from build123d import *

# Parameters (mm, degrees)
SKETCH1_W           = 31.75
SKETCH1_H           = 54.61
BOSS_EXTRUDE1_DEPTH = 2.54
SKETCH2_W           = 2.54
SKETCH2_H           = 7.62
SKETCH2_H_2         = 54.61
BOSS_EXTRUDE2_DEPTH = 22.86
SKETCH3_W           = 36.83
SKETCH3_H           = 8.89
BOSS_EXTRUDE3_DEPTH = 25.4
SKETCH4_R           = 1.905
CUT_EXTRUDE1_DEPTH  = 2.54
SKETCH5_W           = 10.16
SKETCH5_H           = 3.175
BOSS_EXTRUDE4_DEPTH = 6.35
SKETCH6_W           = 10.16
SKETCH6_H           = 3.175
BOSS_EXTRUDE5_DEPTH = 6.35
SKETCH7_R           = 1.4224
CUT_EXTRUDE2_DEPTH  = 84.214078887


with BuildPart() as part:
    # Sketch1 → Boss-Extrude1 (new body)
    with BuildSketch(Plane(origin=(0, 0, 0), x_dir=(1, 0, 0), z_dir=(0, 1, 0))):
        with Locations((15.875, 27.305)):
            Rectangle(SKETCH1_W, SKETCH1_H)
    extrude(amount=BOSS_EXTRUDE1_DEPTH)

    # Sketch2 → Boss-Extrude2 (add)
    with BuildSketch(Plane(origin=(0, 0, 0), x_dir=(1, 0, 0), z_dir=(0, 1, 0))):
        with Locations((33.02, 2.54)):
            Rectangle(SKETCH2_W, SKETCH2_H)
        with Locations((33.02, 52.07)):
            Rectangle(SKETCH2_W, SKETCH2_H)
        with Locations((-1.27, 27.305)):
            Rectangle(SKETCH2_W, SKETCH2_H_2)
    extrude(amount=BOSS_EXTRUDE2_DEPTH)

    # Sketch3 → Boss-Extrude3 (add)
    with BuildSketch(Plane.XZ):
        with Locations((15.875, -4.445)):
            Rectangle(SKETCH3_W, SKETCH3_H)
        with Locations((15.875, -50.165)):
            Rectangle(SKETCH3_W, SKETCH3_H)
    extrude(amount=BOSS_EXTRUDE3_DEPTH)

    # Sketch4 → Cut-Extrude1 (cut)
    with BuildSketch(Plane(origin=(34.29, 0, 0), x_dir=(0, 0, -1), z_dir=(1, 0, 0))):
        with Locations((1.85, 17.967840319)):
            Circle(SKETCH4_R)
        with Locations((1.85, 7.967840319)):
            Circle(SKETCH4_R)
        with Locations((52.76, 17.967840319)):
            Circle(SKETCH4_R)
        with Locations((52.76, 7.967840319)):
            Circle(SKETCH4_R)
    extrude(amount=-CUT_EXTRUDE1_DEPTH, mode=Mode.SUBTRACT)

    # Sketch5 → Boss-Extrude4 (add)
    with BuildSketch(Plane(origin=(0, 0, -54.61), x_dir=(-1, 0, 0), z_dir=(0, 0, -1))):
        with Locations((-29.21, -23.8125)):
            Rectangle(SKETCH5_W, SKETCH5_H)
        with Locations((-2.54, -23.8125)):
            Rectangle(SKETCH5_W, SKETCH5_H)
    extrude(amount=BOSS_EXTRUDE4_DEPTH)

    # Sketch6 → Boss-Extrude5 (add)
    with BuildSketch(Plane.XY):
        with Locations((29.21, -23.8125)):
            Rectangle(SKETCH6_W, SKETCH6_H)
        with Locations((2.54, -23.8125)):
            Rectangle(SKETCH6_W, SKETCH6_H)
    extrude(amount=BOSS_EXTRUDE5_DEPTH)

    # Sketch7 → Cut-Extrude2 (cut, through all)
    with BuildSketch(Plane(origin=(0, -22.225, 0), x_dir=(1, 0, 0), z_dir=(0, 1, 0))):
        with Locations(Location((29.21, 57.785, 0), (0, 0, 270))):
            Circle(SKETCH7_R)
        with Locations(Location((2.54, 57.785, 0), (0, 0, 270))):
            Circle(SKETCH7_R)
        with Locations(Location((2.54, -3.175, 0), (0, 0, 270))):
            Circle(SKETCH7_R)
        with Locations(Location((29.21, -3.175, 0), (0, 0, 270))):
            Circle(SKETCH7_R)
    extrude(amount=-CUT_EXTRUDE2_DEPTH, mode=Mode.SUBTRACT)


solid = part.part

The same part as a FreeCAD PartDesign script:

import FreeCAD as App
import Part
import Sketcher
Q = App.Units.Quantity

doc = App.newDocument("Part")
body = doc.addObject("PartDesign::Body", "Body")

sketch1 = body.newObject("Sketcher::SketchObject", "Sketch")
sketch1.AttachmentSupport = (doc.getObject("XZ_Plane"), [""])
sketch1.MapMode = "FlatFace"
sketch1.addGeometry([
    Part.LineSegment(App.Vector(0, -55, 0), App.Vector(0, 0, 0)),
    Part.LineSegment(App.Vector(0, 0, 0), App.Vector(32, 0, 0)),
    Part.LineSegment(App.Vector(32, 0, 0), App.Vector(32, -55, 0)),
    Part.LineSegment(App.Vector(32, -55, 0), App.Vector(0, -55, 0)),
], False)
sketch1.addConstraint([
    Sketcher.Constraint("Coincident", 0, 2, 1, 1),
    Sketcher.Constraint("Coincident", 1, 2, 2, 1),
    Sketcher.Constraint("Coincident", 2, 2, 3, 1),
    Sketcher.Constraint("Coincident", 3, 2, 0, 1),
    Sketcher.Constraint("Vertical", 0),
    Sketcher.Constraint("Horizontal", 1),
    Sketcher.Constraint("Vertical", 2),
    Sketcher.Constraint("Horizontal", 3),
    Sketcher.Constraint("Coincident", 0, 2, -1, 1),
    Sketcher.Constraint("DistanceX", 1, 1, 1, 2, Q("1.25 in")),
    Sketcher.Constraint("DistanceY", 0, 1, 0, 2, Q("2.15 in")),
])
pad1 = body.newObject("PartDesign::Pad", "Pad")
pad1.Profile = sketch1
pad1.Length = Q("0.1 in")
pad1.Reversed = True

sketch2 = body.newObject("Sketcher::SketchObject", "Sketch001")
sketch2.AttachmentSupport = (doc.getObject("XZ_Plane"), [""])
sketch2.MapMode = "FlatFace"
sketch2.addGeometry([
    Part.LineSegment(App.Vector(31.8, -6.3, 0), App.Vector(31.8, 1.3, 0)),
    Part.LineSegment(App.Vector(31.8, 1.3, 0), App.Vector(34.3, 1.3, 0)),
    Part.LineSegment(App.Vector(34.3, 1.3, 0), App.Vector(34.3, -6.3, 0)),
    Part.LineSegment(App.Vector(34.3, -6.3, 0), App.Vector(31.8, -6.3, 0)),
    Part.LineSegment(App.Vector(31.8, -55.9, 0), App.Vector(31.8, -48.3, 0)),
    Part.LineSegment(App.Vector(31.8, -48.3, 0), App.Vector(34.3, -48.3, 0)),
    Part.LineSegment(App.Vector(34.3, -48.3, 0), App.Vector(34.3, -55.9, 0)),
    Part.LineSegment(App.Vector(34.3, -55.9, 0), App.Vector(31.8, -55.9, 0)),
    Part.LineSegment(App.Vector(-2.5, -54.6, 0), App.Vector(-2.5, 0, 0)),
    Part.LineSegment(App.Vector(-2.5, 0, 0), App.Vector(0, 0, 0)),
    Part.LineSegment(App.Vector(0, 0, 0), App.Vector(0, -54.6, 0)),
    Part.LineSegment(App.Vector(0, -54.6, 0), App.Vector(-2.5, -54.6, 0)),
], False)
sketch2.addConstraint([
    Sketcher.Constraint("Coincident", 0, 2, 1, 1),
    Sketcher.Constraint("Coincident", 1, 2, 2, 1),
    Sketcher.Constraint("Coincident", 2, 2, 3, 1),
    Sketcher.Constraint("Coincident", 3, 2, 0, 1),
    Sketcher.Constraint("Coincident", 4, 2, 5, 1),
    Sketcher.Constraint("Coincident", 5, 2, 6, 1),
    Sketcher.Constraint("Coincident", 6, 2, 7, 1),
    Sketcher.Constraint("Coincident", 7, 2, 4, 1),
    Sketcher.Constraint("Coincident", 8, 2, 9, 1),
    Sketcher.Constraint("Coincident", 9, 2, 10, 1),
    Sketcher.Constraint("Coincident", 10, 2, 11, 1),
    Sketcher.Constraint("Coincident", 11, 2, 8, 1),
    Sketcher.Constraint("Vertical", 0),
    Sketcher.Constraint("Horizontal", 1),
    Sketcher.Constraint("Vertical", 2),
    Sketcher.Constraint("Horizontal", 3),
    Sketcher.Constraint("Vertical", 4),
    Sketcher.Constraint("Horizontal", 5),
    Sketcher.Constraint("Vertical", 6),
    Sketcher.Constraint("Horizontal", 7),
    Sketcher.Constraint("Vertical", 8),
    Sketcher.Constraint("Horizontal", 9),
    Sketcher.Constraint("Vertical", 10),
    Sketcher.Constraint("Horizontal", 11),
    Sketcher.Constraint("Coincident", 9, 2, -1, 1),
    Sketcher.Constraint("Vertical", 3, 2, 4, 2),
    Sketcher.Constraint("Vertical", 2, 2, 5, 2),
    Sketcher.Constraint("Equal", 7, 9),
    Sketcher.Constraint("Equal", 2, 4),
    Sketcher.Constraint("DistanceX", 1, 1, 1, 2, Q("0.1 in")),
    Sketcher.Constraint("DistanceY", 0, 1, 0, 2, Q("0.3 in")),
    Sketcher.Constraint("DistanceY", 8, 1, 8, 2, Q("2.15 in")),
    Sketcher.Constraint("DistanceY", 4, 2, -1, 1, Q("1.9 in")),
    Sketcher.Constraint("DistanceX", -1, 1, 0, 2, Q("1.25 in")),
    Sketcher.Constraint("DistanceY", -1, 1, 0, 2, Q("0.05 in")),
])
pad2 = body.newObject("PartDesign::Pad", "Pad001")
pad2.Profile = sketch2
pad2.Length = Q("0.9 in")
pad2.Reversed = True

sketch3 = body.newObject("Sketcher::SketchObject", "Sketch002")
sketch3.AttachmentSupport = (doc.getObject("XZ_Plane"), [""])
sketch3.MapMode = "FlatFace"
sketch3.addGeometry([
    Part.LineSegment(App.Vector(-3, 0, 0), App.Vector(-3, -9, 0)),
    Part.LineSegment(App.Vector(-3, -9, 0), App.Vector(34, -9, 0)),
    Part.LineSegment(App.Vector(34, -9, 0), App.Vector(34, 0, 0)),
    Part.LineSegment(App.Vector(34, 0, 0), App.Vector(-3, 0, 0)),
    Part.LineSegment(App.Vector(-3, -46, 0), App.Vector(-3, -55, 0)),
    Part.LineSegment(App.Vector(-3, -55, 0), App.Vector(34, -55, 0)),
    Part.LineSegment(App.Vector(34, -55, 0), App.Vector(34, -46, 0)),
    Part.LineSegment(App.Vector(34, -46, 0), App.Vector(-3, -46, 0)),
], False)
sketch3.addConstraint([
    Sketcher.Constraint("Coincident", 0, 2, 1, 1),
    Sketcher.Constraint("Coincident", 1, 2, 2, 1),
    Sketcher.Constraint("Coincident", 2, 2, 3, 1),
    Sketcher.Constraint("Coincident", 3, 2, 0, 1),
    Sketcher.Constraint("Coincident", 4, 2, 5, 1),
    Sketcher.Constraint("Coincident", 5, 2, 6, 1),
    Sketcher.Constraint("Coincident", 6, 2, 7, 1),
    Sketcher.Constraint("Coincident", 7, 2, 4, 1),
    Sketcher.Constraint("Vertical", 0),
    Sketcher.Constraint("Horizontal", 1),
    Sketcher.Constraint("Vertical", 2),
    Sketcher.Constraint("Horizontal", 3),
    Sketcher.Constraint("Vertical", 4),
    Sketcher.Constraint("Horizontal", 5),
    Sketcher.Constraint("Vertical", 6),
    Sketcher.Constraint("Horizontal", 7),
    Sketcher.Constraint("PointOnObject", 2, 2, -1),
    Sketcher.Constraint("Vertical", 3, 2, 4, 2),
    Sketcher.Constraint("Vertical", 2, 2, 5, 2),
    Sketcher.Constraint("Equal", 2, 4),
    Sketcher.Constraint("DistanceX", 1, 1, 1, 2, Q("1.45 in")),
    Sketcher.Constraint("DistanceY", 0, 2, 0, 1, Q("0.35 in")),
    Sketcher.Constraint("DistanceX", 0, 2, -1, 1, Q("0.1 in")),
    Sketcher.Constraint("DistanceY", 6, 2, -1, 1, Q("1.8 in")),
])
pad3 = body.newObject("PartDesign::Pad", "Pad002")
pad3.Profile = sketch3
pad3.Length = Q("1 in")

sketch4 = body.newObject("Sketcher::SketchObject", "Sketch003")
sketch4.AttachmentSupport = (doc.getObject("YZ_Plane"), [""])
sketch4.MapMode = "FlatFace"
sketch4.AttachmentOffset = App.Placement(App.Vector(0, 0, 1.35 * 25.4), App.Rotation())
sketch4.addGeometry([
    Part.Circle(App.Vector(18, -1.9, 0), App.Vector(0, 0, 1), 1.9),
    Part.Circle(App.Vector(8, -1.9, 0), App.Vector(0, 0, 1), 1.9),
    Part.Circle(App.Vector(18, -52.8, 0), App.Vector(0, 0, 1), 1.9),
    Part.Circle(App.Vector(8, -52.8, 0), App.Vector(0, 0, 1), 1.9),
], False)
sketch4.addConstraint([
    Sketcher.Constraint("Equal", 0, 1),
    Sketcher.Constraint("Equal", 1, 2),
    Sketcher.Constraint("Equal", 2, 3),
    Sketcher.Constraint("Horizontal", 0, 3, 1, 3),
    Sketcher.Constraint("Horizontal", 2, 3, 3, 3),
    Sketcher.Constraint("Vertical", 0, 3, 2, 3),
    Sketcher.Constraint("Vertical", 1, 3, 3, 3),
    Sketcher.Constraint("Diameter", 0, Q("0.15 in")),
    Sketcher.Constraint("DistanceY", 0, 3, -1, 1, Q("1.85 mm")),
    Sketcher.Constraint("DistanceY", 2, 3, -1, 1, Q("52.76 mm")),
    Sketcher.Constraint("DistanceX", 1, 3, 0, 3, Q("10 mm")),
    Sketcher.Constraint("DistanceX", -1, 1, 0, 3, Q("17.96784 mm")),
])
pocket1 = body.newObject("PartDesign::Pocket", "Pocket")
pocket1.Profile = sketch4
pocket1.Length = Q("0.1 in")

sketch5 = body.newObject("Sketcher::SketchObject", "Sketch004")
sketch5.AttachmentSupport = (doc.getObject("XY_Plane"), [""])
sketch5.MapMode = "FlatFace"
sketch5.AttachmentOffset = App.Placement(App.Vector(0, 0, -2.15 * 25.4), App.Rotation())
sketch5.addGeometry([
    Part.LineSegment(App.Vector(34.3, -22.2, 0), App.Vector(34.3, -25.4, 0)),
    Part.LineSegment(App.Vector(34.3, -25.4, 0), App.Vector(24.1, -25.4, 0)),
    Part.LineSegment(App.Vector(24.1, -25.4, 0), App.Vector(24.1, -22.2, 0)),
    Part.LineSegment(App.Vector(24.1, -22.2, 0), App.Vector(34.3, -22.2, 0)),
    Part.LineSegment(App.Vector(7.6, -22.2, 0), App.Vector(7.6, -25.4, 0)),
    Part.LineSegment(App.Vector(7.6, -25.4, 0), App.Vector(-2.5, -25.4, 0)),
    Part.LineSegment(App.Vector(-2.5, -25.4, 0), App.Vector(-2.5, -22.2, 0)),
    Part.LineSegment(App.Vector(-2.5, -22.2, 0), App.Vector(7.6, -22.2, 0)),
], False)
sketch5.addConstraint([
    Sketcher.Constraint("Coincident", 0, 2, 1, 1),
    Sketcher.Constraint("Coincident", 1, 2, 2, 1),
    Sketcher.Constraint("Coincident", 2, 2, 3, 1),
    Sketcher.Constraint("Coincident", 3, 2, 0, 1),
    Sketcher.Constraint("Coincident", 4, 2, 5, 1),
    Sketcher.Constraint("Coincident", 5, 2, 6, 1),
    Sketcher.Constraint("Coincident", 6, 2, 7, 1),
    Sketcher.Constraint("Coincident", 7, 2, 4, 1),
    Sketcher.Constraint("Vertical", 0),
    Sketcher.Constraint("Horizontal", 1),
    Sketcher.Constraint("Vertical", 2),
    Sketcher.Constraint("Horizontal", 3),
    Sketcher.Constraint("Vertical", 4),
    Sketcher.Constraint("Horizontal", 5),
    Sketcher.Constraint("Vertical", 6),
    Sketcher.Constraint("Horizontal", 7),
    Sketcher.Constraint("Horizontal", 1, 2, 4, 2),
    Sketcher.Constraint("Horizontal", 3, 2, 6, 2),
    Sketcher.Constraint("Equal", 3, 5),
    Sketcher.Constraint("DistanceX", 1, 2, 1, 1, Q("0.4 in")),
    Sketcher.Constraint("DistanceY", 0, 2, -1, 1, Q("1 in")),
    Sketcher.Constraint("DistanceX", -1, 1, 4, 2, Q("0.3 in")),
    Sketcher.Constraint("DistanceY", 0, 2, 0, 1, Q("0.125 in")),
    Sketcher.Constraint("DistanceX", -1, 1, 0, 2, Q("1.35 in")),
])
pad4 = body.newObject("PartDesign::Pad", "Pad003")
pad4.Profile = sketch5
pad4.Length = Q("0.25 in")
pad4.Reversed = True

sketch6 = body.newObject("Sketcher::SketchObject", "Sketch005")
sketch6.AttachmentSupport = (doc.getObject("XY_Plane"), [""])
sketch6.MapMode = "FlatFace"
sketch6.addGeometry([
    Part.LineSegment(App.Vector(24.1, -22.2, 0), App.Vector(24.1, -25.4, 0)),
    Part.LineSegment(App.Vector(24.1, -25.4, 0), App.Vector(34.3, -25.4, 0)),
    Part.LineSegment(App.Vector(34.3, -25.4, 0), App.Vector(34.3, -22.2, 0)),
    Part.LineSegment(App.Vector(34.3, -22.2, 0), App.Vector(24.1, -22.2, 0)),
    Part.LineSegment(App.Vector(-2.5, -22.2, 0), App.Vector(-2.5, -25.4, 0)),
    Part.LineSegment(App.Vector(-2.5, -25.4, 0), App.Vector(7.6, -25.4, 0)),
    Part.LineSegment(App.Vector(7.6, -25.4, 0), App.Vector(7.6, -22.2, 0)),
    Part.LineSegment(App.Vector(7.6, -22.2, 0), App.Vector(-2.5, -22.2, 0)),
], False)
sketch6.addConstraint([
    Sketcher.Constraint("Coincident", 0, 2, 1, 1),
    Sketcher.Constraint("Coincident", 1, 2, 2, 1),
    Sketcher.Constraint("Coincident", 2, 2, 3, 1),
    Sketcher.Constraint("Coincident", 3, 2, 0, 1),
    Sketcher.Constraint("Coincident", 4, 2, 5, 1),
    Sketcher.Constraint("Coincident", 5, 2, 6, 1),
    Sketcher.Constraint("Coincident", 6, 2, 7, 1),
    Sketcher.Constraint("Coincident", 7, 2, 4, 1),
    Sketcher.Constraint("Vertical", 0),
    Sketcher.Constraint("Horizontal", 1),
    Sketcher.Constraint("Vertical", 2),
    Sketcher.Constraint("Horizontal", 3),
    Sketcher.Constraint("Vertical", 4),
    Sketcher.Constraint("Horizontal", 5),
    Sketcher.Constraint("Vertical", 6),
    Sketcher.Constraint("Horizontal", 7),
    Sketcher.Constraint("Horizontal", 1, 2, 4, 2),
    Sketcher.Constraint("Horizontal", 3, 2, 6, 2),
    Sketcher.Constraint("Equal", 3, 5),
    Sketcher.Constraint("DistanceX", 1, 1, 1, 2, Q("0.4 in")),
    Sketcher.Constraint("DistanceY", 0, 2, -1, 1, Q("1 in")),
    Sketcher.Constraint("DistanceX", 4, 2, -1, 1, Q("0.1 in")),
    Sketcher.Constraint("DistanceY", 0, 2, 0, 1, Q("0.125 in")),
    Sketcher.Constraint("DistanceX", -1, 1, 0, 2, Q("0.95 in")),
])
pad5 = body.newObject("PartDesign::Pad", "Pad004")
pad5.Profile = sketch6
pad5.Length = Q("0.25 in")

sketch7 = body.newObject("Sketcher::SketchObject", "Sketch006")
sketch7.AttachmentSupport = (doc.getObject("XZ_Plane"), [""])
sketch7.MapMode = "FlatFace"
sketch7.AttachmentOffset = App.Placement(App.Vector(0, 0, 0.875 * 25.4), App.Rotation())
sketch7.addGeometry([
    Part.Circle(App.Vector(29.2, -57.8, 0), App.Vector(0, 0, 1), 1.4),
    Part.Circle(App.Vector(2.5, -57.8, 0), App.Vector(0, 0, 1), 1.4),
    Part.Circle(App.Vector(2.5, 3.2, 0), App.Vector(0, 0, 1), 1.4),
    Part.Circle(App.Vector(29.2, 3.2, 0), App.Vector(0, 0, 1), 1.4),
], False)
sketch7.addConstraint([
    Sketcher.Constraint("Equal", 0, 1),
    Sketcher.Constraint("Equal", 1, 2),
    Sketcher.Constraint("Equal", 2, 3),
    Sketcher.Constraint("Horizontal", 0, 3, 1, 3),
    Sketcher.Constraint("Horizontal", 2, 3, 3, 3),
    Sketcher.Constraint("Vertical", 1, 3, 2, 3),
    Sketcher.Constraint("Vertical", 0, 3, 3, 3),
    Sketcher.Constraint("Diameter", 0, Q("0.112 in")),
    Sketcher.Constraint("DistanceX", -1, 1, 1, 3, Q("0.1 in")),
    Sketcher.Constraint("DistanceY", 1, 3, 2, 3, Q("2.4 in")),
    Sketcher.Constraint("DistanceX", -1, 1, 0, 3, Q("1.15 in")),
    Sketcher.Constraint("DistanceY", 0, 3, -1, 1, Q("2.275 in")),
])
pocket2 = body.newObject("PartDesign::Pocket", "Pocket001")
pocket2.Profile = sketch7
pocket2.Type = "ThroughAll"
pocket2.Reversed = True

doc.recompute()
